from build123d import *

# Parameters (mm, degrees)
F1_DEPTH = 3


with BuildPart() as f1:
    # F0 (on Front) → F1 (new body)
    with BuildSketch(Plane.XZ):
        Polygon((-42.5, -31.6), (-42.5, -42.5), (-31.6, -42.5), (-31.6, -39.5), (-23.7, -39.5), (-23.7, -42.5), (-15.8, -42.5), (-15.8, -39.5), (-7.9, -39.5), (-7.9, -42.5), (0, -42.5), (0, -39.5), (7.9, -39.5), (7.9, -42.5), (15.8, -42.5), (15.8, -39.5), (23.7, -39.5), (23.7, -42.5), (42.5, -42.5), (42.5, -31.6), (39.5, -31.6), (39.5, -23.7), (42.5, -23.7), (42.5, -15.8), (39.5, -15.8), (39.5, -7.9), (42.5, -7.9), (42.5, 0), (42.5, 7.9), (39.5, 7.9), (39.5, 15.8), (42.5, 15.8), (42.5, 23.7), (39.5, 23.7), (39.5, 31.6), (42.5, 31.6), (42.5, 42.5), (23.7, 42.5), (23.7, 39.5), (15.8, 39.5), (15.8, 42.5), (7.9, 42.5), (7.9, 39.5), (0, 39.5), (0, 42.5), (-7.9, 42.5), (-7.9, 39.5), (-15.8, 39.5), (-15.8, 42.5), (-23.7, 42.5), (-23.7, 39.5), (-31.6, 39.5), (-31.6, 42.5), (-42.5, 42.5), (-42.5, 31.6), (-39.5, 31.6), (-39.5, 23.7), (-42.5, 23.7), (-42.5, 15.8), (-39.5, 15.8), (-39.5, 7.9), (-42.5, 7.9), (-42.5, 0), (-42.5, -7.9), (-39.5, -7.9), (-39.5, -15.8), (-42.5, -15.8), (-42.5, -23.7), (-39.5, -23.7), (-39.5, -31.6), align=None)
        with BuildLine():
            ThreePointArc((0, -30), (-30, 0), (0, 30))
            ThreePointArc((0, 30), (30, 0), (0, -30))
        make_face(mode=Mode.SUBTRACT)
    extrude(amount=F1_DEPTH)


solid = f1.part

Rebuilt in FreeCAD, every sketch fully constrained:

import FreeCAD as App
import Part
import Sketcher

V = App.Vector
Q = App.Units.Quantity


def add_polygon(sketch, points):
    """Adds a closed chain of lines whose ends are joined by coincident constraints."""
    first, n = sketch.GeometryCount, len(points)
    for a, b in zip(points, points[1:] + points[:1]):
        sketch.addGeometry(Part.LineSegment(App.Vector(*a, 0), App.Vector(*b, 0)), False)
    for i in range(n):
        sketch.addConstraint(Sketcher.Constraint("Coincident", first + i, 2, first + (i + 1) % n, 1))

doc = App.newDocument("Part")
body = doc.addObject("PartDesign::Body", "Body")

# Sketch on XZ plane
sketch1 = body.newObject("Sketcher::SketchObject", "Sketch")
sketch1.AttachmentSupport = (doc.getObject("XZ_Plane"), [""])
sketch1.MapMode = "FlatFace"
add_polygon(sketch1, [(-42.5, -31.6), (-42.5, -42.5), (-31.6, -42.5), (-31.6, -39.5), (-23.7, -39.5), (-23.7, -42.5), (-15.8, -42.5), (-15.8, -39.5), (-7.9, -39.5), (-7.9, -42.5), (0, -42.5), (0, -39.5), (7.9, -39.5), (7.9, -42.5), (15.8, -42.5), (15.8, -39.5), (23.7, -39.5), (23.7, -42.5), (42.5, -42.5), (42.5, -31.6), (39.5, -31.6), (39.5, -23.7), (42.5, -23.7), (42.5, -15.8), (39.5, -15.8), (39.5, -7.9), (42.5, -7.9), (42.5, 7.9), (39.5, 7.9), (39.5, 15.8), (42.5, 15.8), (42.5, 23.7), (39.5, 23.7), (39.5, 31.6), (42.5, 31.6), (42.5, 42.5), (23.7, 42.5), (23.7, 39.5), (15.8, 39.5), (15.8, 42.5), (7.9, 42.5), (7.9, 39.5), (0, 39.5), (0, 42.5), (-7.9, 42.5), (-7.9, 39.5), (-15.8, 39.5), (-15.8, 42.5), (-23.7, 42.5), (-23.7, 39.5), (-31.6, 39.5), (-31.6, 42.5), (-42.5, 42.5), (-42.5, 31.6), (-39.5, 31.6), (-39.5, 23.7), (-42.5, 23.7), (-42.5, 15.8), (-39.5, 15.8), (-39.5, 7.9), (-42.5, 7.9), (-42.5, -7.9), (-39.5, -7.9), (-39.5, -15.8), (-42.5, -15.8), (-42.5, -23.7), (-39.5, -23.7), (-39.5, -31.6)])  # lines 0-67
sketch1.addGeometry(Part.Circle(V(0, 0, 0), V(0, 0, 1), 30), False)  # 68
sketch1.addConstraint(Sketcher.Constraint("Vertical", 0))
sketch1.addConstraint(Sketcher.Constraint("Horizontal", 1))
sketch1.addConstraint(Sketcher.Constraint("Vertical", 2))
sketch1.addConstraint(Sketcher.Constraint("Horizontal", 3))
sketch1.addConstraint(Sketcher.Constraint("Vertical", 4))
sketch1.addConstraint(Sketcher.Constraint("Horizontal", 5))
sketch1.addConstraint(Sketcher.Constraint("Vertical", 6))
sketch1.addConstraint(Sketcher.Constraint("Horizontal", 7))
sketch1.addConstraint(Sketcher.Constraint("Vertical", 8))
sketch1.addConstraint(Sketcher.Constraint("Horizontal", 9))
sketch1.addConstraint(Sketcher.Constraint("Vertical", 10))
sketch1.addConstraint(Sketcher.Constraint("Horizontal", 11))
sketch1.addConstraint(Sketcher.Constraint("Vertical", 12))
sketch1.addConstraint(Sketcher.Constraint("Horizontal", 13))
sketch1.addConstraint(Sketcher.Constraint("Vertical", 14))
sketch1.addConstraint(Sketcher.Constraint("Horizontal", 15))
sketch1.addConstraint(Sketcher.Constraint("Vertical", 16))
sketch1.addConstraint(Sketcher.Constraint("Horizontal", 17))
sketch1.addConstraint(Sketcher.Constraint("Vertical", 18))
sketch1.addConstraint(Sketcher.Constraint("Horizontal", 19))
sketch1.addConstraint(Sketcher.Constraint("Vertical", 20))
sketch1.addConstraint(Sketcher.Constraint("Horizontal", 21))
sketch1.addConstraint(Sketcher.Constraint("Vertical", 22))
sketch1.addConstraint(Sketcher.Constraint("Horizontal", 23))
sketch1.addConstraint(Sketcher.Constraint("Vertical", 24))
sketch1.addConstraint(Sketcher.Constraint("Horizontal", 25))
sketch1.addConstraint(Sketcher.Constraint("Vertical", 26))
sketch1.addConstraint(Sketcher.Constraint("Horizontal", 27))
sketch1.addConstraint(Sketcher.Constraint("Vertical", 28))
sketch1.addConstraint(Sketcher.Constraint("Horizontal", 29))
sketch1.addConstraint(Sketcher.Constraint("Vertical", 30))
sketch1.addConstraint(Sketcher.Constraint("Horizontal", 31))
sketch1.addConstraint(Sketcher.Constraint("Vertical", 32))
sketch1.addConstraint(Sketcher.Constraint("Horizontal", 33))
sketch1.addConstraint(Sketcher.Constraint("Vertical", 34))
sketch1.addConstraint(Sketcher.Constraint("Horizontal", 35))
sketch1.addConstraint(Sketcher.Constraint("Vertical", 36))
sketch1.addConstraint(Sketcher.Constraint("Horizontal", 37))
sketch1.addConstraint(Sketcher.Constraint("Vertical", 38))
sketch1.addConstraint(Sketcher.Constraint("Horizontal", 39))
sketch1.addConstraint(Sketcher.Constraint("Vertical", 40))
sketch1.addConstraint(Sketcher.Constraint("Horizontal", 41))
sketch1.addConstraint(Sketcher.Constraint("Vertical", 42))
sketch1.addConstraint(Sketcher.Constraint("Horizontal", 43))
sketch1.addConstraint(Sketcher.Constraint("Vertical", 44))
sketch1.addConstraint(Sketcher.Constraint("Horizontal", 45))
sketch1.addConstraint(Sketcher.Constraint("Vertical", 46))
sketch1.addConstraint(Sketcher.Constraint("Horizontal", 47))
sketch1.addConstraint(Sketcher.Constraint("Vertical", 48))
sketch1.addConstraint(Sketcher.Constraint("Horizontal", 49))
sketch1.addConstraint(Sketcher.Constraint("Vertical", 50))
sketch1.addConstraint(Sketcher.Constraint("Horizontal", 51))
sketch1.addConstraint(Sketcher.Constraint("Vertical", 52))
sketch1.addConstraint(Sketcher.Constraint("Horizontal", 53))
sketch1.addConstraint(Sketcher.Constraint("Vertical", 54))
sketch1.addConstraint(Sketcher.Constraint("Horizontal", 55))
sketch1.addConstraint(Sketcher.Constraint("Vertical", 56))
sketch1.addConstraint(Sketcher.Constraint("Horizontal", 57))
sketch1.addConstraint(Sketcher.Constraint("Vertical", 58))
sketch1.addConstraint(Sketcher.Constraint("Horizontal", 59))
sketch1.addConstraint(Sketcher.Constraint("Vertical", 60))
sketch1.addConstraint(Sketcher.Constraint("Horizontal", 61))
sketch1.addConstraint(Sketcher.Constraint("Vertical", 62))
sketch1.addConstraint(Sketcher.Constraint("Horizontal", 63))
sketch1.addConstraint(Sketcher.Constraint("Vertical", 64))
sketch1.addConstraint(Sketcher.Constraint("Horizontal", 65))
sketch1.addConstraint(Sketcher.Constraint("Vertical", 66))
sketch1.addConstraint(Sketcher.Constraint("Horizontal", 67))
sketch1.addConstraint(Sketcher.Constraint("Coincident", 68, 3, -1, 1))
sketch1.addConstraint(Sketcher.Constraint("Symmetric", 0, 2, 34, 2, -1, 1))
sketch1.addConstraint(Sketcher.Constraint("Symmetric", 4, 2, 35, 2, -1, 1))
sketch1.addConstraint(Sketcher.Constraint("Symmetric", 6, 2, 37, 2, -1, 1))
sketch1.addConstraint(Sketcher.Constraint("Symmetric", 8, 2, 39, 2, -1, 1))
sketch1.addConstraint(Sketcher.Constraint("Symmetric", 10, 2, 41, 2, -1, 1))
sketch1.addConstraint(Sketcher.Constraint("Symmetric", 12, 2, 43, 2, -1, 1))
sketch1.addConstraint(Sketcher.Constraint("Symmetric", 14, 2, 45, 2, -1, 1))
sketch1.addConstraint(Sketcher.Constraint("Symmetric", 16, 2, 47, 2, -1, 1))
sketch1.addConstraint(Sketcher.Constraint("Symmetric", 17, 2, 51, 2, -1, 1))
sketch1.addConstraint(Sketcher.Constraint("Symmetric", 19, 2, 53, 2, -1, 1))
sketch1.addConstraint(Sketcher.Constraint("Symmetric", 21, 2, 55, 2, -1, 1))
sketch1.addConstraint(Sketcher.Constraint("Symmetric", 23, 2, 57, 2, -1, 1))
sketch1.addConstraint(Sketcher.Constraint("Symmetric", 25, 2, 59, 2, -1, 1))
sketch1.addConstraint(Sketcher.Constraint("Symmetric", 27, 2, 61, 2, -1, 1))
sketch1.addConstraint(Sketcher.Constraint("Symmetric", 29, 2, 63, 2, -1, 1))
sketch1.addConstraint(Sketcher.Constraint("Symmetric", 31, 2, 65, 2, -1, 1))
sketch1.addConstraint(Sketcher.Constraint("Symmetric", 7, 2, 11, 2, -2))
sketch1.addConstraint(Sketcher.Constraint("Symmetric", 5, 2, 13, 2, -2))
sketch1.addConstraint(Sketcher.Constraint("Symmetric", 3, 2, 15, 2, -2))
sketch1.addConstraint(Sketcher.Constraint("Symmetric", 0, 2, 17, 2, -2))
sketch1.addConstraint(Sketcher.Constraint("Symmetric", 32, 2, 53, 2, -2))
sketch1.addConstraint(Sketcher.Constraint("Symmetric", 30, 2, 55, 2, -2))
sketch1.addConstraint(Sketcher.Constraint("Symmetric", 28, 2, 57, 2, -2))
sketch1.addConstraint(Sketcher.Constraint("Symmetric", 9, 2, 42, 2, -1))
sketch1.addConstraint(Sketcher.Constraint("Symmetric", 2, 2, 49, 2, -1))
sketch1.addConstraint(Sketcher.Constraint("Horizontal", 3, 2, 6, 2))
sketch1.addConstraint(Sketcher.Constraint("Horizontal", 27, 2, 58, 2))
sketch1.addConstraint(Sketcher.Constraint("Horizontal", 19, 2, 66, 2))
sketch1.addConstraint(Sketcher.Constraint("Vertical", 18, 2, 21, 2))
sketch1.addConstraint(Sketcher.Constraint("Vertical", 20, 2, 23, 2))
sketch1.addConstraint(Sketcher.Constraint("Vertical", 22, 2, 25, 2))
sketch1.addConstraint(Sketcher.Constraint("Equal", 3, 5))
sketch1.addConstraint(Sketcher.Constraint("Equal", 5, 7))
sketch1.addConstraint(Sketcher.Constraint("Equal", 7, 9))
sketch1.addConstraint(Sketcher.Constraint("Equal", 51, 0))
sketch1.addConstraint(Sketcher.Constraint("Equal", 67, 2))
sketch1.addConstraint(Sketcher.Constraint("Equal", 49, 20))
sketch1.addConstraint(Sketcher.Constraint("Equal", 20, 22))
sketch1.addConstraint(Sketcher.Constraint("Equal", 22, 24))
sketch1.addConstraint(Sketcher.Constraint("Diameter", 68, Q("60 mm")))
sketch1.addConstraint(Sketcher.Constraint("DistanceX", 19, 2, 19, 1, Q("3 mm")))
sketch1.addConstraint(Sketcher.Constraint("DistanceX", 1, 1, 1, 2, Q("10.9 mm")))
sketch1.addConstraint(Sketcher.Constraint("DistanceX", 3, 1, 3, 2, Q("7.9 mm")))
sketch1.addConstraint(Sketcher.Constraint("DistanceY", 26, 1, 26, 2, Q("15.8 mm")))
pad1 = body.newObject("PartDesign::Pad", "Pad")
pad1.Profile = sketch1
pad1.Length = 3

doc.recompute()
